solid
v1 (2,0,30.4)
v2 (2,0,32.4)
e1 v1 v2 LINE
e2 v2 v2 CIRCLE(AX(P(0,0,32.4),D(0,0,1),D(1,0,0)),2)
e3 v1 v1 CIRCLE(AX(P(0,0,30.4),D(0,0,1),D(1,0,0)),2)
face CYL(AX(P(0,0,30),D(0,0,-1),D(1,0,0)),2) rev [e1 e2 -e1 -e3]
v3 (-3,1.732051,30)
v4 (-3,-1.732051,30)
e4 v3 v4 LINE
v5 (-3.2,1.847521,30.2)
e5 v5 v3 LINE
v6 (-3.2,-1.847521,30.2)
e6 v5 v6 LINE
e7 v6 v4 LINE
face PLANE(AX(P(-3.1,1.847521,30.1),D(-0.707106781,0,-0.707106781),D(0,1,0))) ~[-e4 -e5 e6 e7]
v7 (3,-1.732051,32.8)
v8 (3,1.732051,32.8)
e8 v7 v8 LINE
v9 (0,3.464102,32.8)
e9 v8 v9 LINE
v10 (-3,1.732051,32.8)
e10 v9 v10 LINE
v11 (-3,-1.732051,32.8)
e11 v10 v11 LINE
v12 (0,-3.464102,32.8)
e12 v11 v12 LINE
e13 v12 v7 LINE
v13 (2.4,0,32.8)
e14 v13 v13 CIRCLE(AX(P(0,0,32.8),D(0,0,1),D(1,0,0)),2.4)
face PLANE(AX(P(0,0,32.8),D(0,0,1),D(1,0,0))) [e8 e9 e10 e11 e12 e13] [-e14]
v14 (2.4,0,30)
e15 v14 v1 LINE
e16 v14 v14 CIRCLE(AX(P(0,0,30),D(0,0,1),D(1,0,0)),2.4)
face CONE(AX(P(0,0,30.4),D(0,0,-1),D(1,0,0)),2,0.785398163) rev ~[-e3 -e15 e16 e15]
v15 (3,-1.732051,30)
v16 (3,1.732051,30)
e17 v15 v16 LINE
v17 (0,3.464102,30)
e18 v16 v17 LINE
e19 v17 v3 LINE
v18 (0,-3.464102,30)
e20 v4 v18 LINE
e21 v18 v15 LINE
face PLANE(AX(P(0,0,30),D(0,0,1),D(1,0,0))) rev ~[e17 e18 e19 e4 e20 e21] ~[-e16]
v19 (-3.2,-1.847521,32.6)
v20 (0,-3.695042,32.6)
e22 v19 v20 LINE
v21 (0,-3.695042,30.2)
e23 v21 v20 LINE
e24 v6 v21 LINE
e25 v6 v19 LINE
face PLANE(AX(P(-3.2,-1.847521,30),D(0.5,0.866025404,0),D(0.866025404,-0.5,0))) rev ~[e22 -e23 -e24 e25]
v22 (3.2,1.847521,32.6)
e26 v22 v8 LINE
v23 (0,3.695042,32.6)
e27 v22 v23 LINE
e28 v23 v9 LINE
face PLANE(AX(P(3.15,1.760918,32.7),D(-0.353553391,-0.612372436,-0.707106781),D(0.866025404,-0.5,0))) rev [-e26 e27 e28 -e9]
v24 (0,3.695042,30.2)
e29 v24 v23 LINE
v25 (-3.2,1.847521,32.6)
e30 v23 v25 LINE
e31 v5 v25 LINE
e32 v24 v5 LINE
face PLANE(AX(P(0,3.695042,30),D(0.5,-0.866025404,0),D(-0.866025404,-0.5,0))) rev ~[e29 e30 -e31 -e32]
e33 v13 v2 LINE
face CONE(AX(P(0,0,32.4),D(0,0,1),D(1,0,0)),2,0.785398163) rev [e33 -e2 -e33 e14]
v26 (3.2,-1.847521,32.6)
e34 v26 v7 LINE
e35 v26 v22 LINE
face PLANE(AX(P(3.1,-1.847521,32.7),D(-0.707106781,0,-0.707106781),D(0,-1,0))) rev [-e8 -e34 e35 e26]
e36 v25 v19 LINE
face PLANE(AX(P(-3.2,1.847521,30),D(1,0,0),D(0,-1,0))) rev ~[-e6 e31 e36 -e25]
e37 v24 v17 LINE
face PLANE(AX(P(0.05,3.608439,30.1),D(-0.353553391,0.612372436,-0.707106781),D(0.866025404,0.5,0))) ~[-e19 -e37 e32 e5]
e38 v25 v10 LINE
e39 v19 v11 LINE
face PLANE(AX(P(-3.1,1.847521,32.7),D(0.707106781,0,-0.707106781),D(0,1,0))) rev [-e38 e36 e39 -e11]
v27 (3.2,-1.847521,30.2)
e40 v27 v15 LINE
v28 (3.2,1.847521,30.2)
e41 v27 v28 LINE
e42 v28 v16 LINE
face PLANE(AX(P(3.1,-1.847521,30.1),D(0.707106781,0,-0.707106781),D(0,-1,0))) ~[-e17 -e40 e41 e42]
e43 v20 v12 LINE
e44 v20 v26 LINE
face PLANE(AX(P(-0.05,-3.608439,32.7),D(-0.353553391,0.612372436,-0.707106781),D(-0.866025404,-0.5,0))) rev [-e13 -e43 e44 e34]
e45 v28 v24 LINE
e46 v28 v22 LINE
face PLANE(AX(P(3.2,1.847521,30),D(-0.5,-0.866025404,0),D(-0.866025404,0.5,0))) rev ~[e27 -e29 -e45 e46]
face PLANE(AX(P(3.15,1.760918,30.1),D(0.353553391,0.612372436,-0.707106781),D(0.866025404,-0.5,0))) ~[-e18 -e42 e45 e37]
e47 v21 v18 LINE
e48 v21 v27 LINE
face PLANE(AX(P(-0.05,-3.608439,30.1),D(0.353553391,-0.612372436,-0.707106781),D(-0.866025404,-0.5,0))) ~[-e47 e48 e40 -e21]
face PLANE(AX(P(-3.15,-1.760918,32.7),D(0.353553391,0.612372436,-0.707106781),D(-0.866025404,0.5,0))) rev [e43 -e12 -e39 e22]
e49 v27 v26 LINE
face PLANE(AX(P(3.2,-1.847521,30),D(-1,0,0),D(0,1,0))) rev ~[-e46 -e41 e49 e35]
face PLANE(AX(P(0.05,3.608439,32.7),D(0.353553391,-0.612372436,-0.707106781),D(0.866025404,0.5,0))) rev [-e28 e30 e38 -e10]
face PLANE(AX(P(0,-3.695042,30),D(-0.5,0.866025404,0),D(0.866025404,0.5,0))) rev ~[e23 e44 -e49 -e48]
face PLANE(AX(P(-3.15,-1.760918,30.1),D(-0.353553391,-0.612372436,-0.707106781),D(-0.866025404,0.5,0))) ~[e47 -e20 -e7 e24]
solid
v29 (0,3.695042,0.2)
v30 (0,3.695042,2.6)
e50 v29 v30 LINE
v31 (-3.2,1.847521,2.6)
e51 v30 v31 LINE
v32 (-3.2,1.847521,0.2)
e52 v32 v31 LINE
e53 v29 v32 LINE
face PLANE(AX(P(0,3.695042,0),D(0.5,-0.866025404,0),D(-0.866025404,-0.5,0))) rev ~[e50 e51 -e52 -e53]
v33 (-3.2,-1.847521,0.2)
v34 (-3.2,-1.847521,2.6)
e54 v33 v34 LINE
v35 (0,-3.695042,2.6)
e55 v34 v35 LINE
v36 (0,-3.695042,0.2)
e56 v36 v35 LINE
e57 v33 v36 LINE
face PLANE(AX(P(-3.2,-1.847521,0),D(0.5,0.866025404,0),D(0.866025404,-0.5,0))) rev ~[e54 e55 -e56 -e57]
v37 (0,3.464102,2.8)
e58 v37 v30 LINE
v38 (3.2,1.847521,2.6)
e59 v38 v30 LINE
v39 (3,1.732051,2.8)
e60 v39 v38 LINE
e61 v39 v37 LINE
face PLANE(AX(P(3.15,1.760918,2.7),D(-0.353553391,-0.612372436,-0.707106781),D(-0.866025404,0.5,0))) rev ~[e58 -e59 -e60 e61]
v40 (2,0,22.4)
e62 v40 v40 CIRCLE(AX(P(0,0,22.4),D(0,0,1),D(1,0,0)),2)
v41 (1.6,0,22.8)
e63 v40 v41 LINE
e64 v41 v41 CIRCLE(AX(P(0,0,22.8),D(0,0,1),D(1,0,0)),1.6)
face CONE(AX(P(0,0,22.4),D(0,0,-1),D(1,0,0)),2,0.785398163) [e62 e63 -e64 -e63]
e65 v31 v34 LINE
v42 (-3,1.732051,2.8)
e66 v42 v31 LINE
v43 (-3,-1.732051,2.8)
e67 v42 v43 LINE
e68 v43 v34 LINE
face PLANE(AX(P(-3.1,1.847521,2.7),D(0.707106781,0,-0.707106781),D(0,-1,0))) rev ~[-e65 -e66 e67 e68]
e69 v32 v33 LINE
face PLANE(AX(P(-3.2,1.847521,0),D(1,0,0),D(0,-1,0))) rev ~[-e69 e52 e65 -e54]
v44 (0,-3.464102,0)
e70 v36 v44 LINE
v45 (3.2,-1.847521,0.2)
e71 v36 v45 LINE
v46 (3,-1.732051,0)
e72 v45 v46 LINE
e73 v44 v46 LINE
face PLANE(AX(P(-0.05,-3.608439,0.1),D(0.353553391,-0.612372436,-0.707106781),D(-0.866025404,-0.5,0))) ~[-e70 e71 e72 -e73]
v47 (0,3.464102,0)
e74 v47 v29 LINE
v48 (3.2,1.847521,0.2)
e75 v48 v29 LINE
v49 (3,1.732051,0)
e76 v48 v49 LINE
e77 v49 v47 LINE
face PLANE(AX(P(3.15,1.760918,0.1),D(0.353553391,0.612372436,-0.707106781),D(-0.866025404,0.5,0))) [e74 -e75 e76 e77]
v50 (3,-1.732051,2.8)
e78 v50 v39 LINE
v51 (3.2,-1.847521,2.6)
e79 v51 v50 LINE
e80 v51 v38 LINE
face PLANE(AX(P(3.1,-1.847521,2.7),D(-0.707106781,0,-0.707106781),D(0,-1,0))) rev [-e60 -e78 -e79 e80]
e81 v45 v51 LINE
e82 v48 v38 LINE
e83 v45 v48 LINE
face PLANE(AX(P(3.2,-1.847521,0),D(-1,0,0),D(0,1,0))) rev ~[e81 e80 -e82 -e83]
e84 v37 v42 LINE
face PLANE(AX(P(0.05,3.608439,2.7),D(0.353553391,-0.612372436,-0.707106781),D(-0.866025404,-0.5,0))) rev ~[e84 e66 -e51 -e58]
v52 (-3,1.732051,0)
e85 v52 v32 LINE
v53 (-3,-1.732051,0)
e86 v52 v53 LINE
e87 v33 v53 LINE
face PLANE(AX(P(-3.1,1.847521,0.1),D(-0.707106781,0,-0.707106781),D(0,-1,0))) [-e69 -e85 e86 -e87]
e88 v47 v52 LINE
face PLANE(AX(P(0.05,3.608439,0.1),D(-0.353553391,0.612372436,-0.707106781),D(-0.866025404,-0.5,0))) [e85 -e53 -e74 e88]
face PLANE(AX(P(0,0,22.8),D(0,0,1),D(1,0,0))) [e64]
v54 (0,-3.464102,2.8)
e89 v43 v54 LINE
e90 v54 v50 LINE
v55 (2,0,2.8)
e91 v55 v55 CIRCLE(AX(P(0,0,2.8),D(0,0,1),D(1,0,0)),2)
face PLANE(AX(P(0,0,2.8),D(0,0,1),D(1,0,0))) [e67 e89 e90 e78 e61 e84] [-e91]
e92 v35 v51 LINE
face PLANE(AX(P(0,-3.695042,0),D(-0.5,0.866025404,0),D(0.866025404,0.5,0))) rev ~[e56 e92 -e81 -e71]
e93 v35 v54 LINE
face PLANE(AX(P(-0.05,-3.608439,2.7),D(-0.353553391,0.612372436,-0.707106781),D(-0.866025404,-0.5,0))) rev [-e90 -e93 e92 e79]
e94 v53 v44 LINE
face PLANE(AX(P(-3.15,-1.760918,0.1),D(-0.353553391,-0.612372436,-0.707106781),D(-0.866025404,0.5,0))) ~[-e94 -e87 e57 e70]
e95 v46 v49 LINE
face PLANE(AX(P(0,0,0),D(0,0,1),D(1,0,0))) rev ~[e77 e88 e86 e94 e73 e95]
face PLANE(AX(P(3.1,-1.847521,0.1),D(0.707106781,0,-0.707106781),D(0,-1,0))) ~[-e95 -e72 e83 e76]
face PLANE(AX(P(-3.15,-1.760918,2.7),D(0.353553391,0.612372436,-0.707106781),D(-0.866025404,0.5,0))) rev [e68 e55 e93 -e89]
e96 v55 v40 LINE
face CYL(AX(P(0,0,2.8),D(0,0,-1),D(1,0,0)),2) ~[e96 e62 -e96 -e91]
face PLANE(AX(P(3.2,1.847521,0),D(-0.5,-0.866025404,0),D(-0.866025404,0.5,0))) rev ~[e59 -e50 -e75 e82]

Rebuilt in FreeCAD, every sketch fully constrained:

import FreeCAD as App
import Part
import Sketcher
from FreeCAD import Vector
Q = App.Units.Quantity


def edges_at(feature, points):
    """Names of the edges that pass closest to the given points."""
    edges = feature.Shape.Edges
    near = lambda p: min(range(len(edges)), key=lambda i: edges[i].distToShape(Part.Vertex(*p))[0])
    return sorted({f"Edge{near(p) + 1}" for p in points})


def add_polygon(sketch, points):
    """Adds a closed chain of lines whose ends are joined by coincident constraints."""
    first, n = sketch.GeometryCount, len(points)
    for a, b in zip(points, points[1:] + points[:1]):
        sketch.addGeometry(Part.LineSegment(App.Vector(*a, 0), App.Vector(*b, 0)), False)
    for i in range(n):
        sketch.addConstraint(Sketcher.Constraint("Coincident", first + i, 2, first + (i + 1) % n, 1))

doc = App.newDocument("Part")
body = doc.addObject("PartDesign::Body", "Body")

sketch1 = body.newObject("Sketcher::SketchObject", "Sketch")
sketch1.AttachmentSupport = (doc.getObject("XY_Plane"), [""])
sketch1.MapMode = "FlatFace"
add_polygon(sketch1, [(0, -3.7), (3.2, -1.8), (3.2, 1.8), (0, 3.7), (-3.2, 1.8), (-3.2, -1.8)])
sketch1.addConstraint(Sketcher.Constraint("Vertical", 1))
sketch1.addConstraint(Sketcher.Constraint("Vertical", 4))
sketch1.addConstraint(Sketcher.Constraint("Symmetric", 0, 2, 3, 2, -1, 1))
sketch1.addConstraint(Sketcher.Constraint("Symmetric", 2, 2, 5, 2, -1, 1))
sketch1.addConstraint(Sketcher.Constraint("PointOnObject", 2, 2, -2))
sketch1.addConstraint(Sketcher.Constraint("Parallel", 2, 5))
sketch1.addConstraint(Sketcher.Constraint("Horizontal", 1, 2, 3, 2))
sketch1.addConstraint(Sketcher.Constraint("Angle", 0, Q("30 deg")))
sketch1.addConstraint(Sketcher.Constraint("DistanceX", -1, 1, 0, 2, Q("3.2 mm")))
sketch1.addConstraint(Sketcher.Constraint("DistanceY", 1, 1, 1, 2, Q("3.695042 mm")))
pad1 = body.newObject("PartDesign::Pad", "Pad")
pad1.Profile = sketch1
pad1.Length = 2.8

sketch2 = body.newObject("Sketcher::SketchObject", "Sketch001")
sketch2.AttachmentSupport = (doc.getObject("XY_Plane"), [""])
sketch2.MapMode = "FlatFace"
sketch2.AttachmentOffset = App.Placement(Vector(0, 0, 2.8), App.Rotation())
sketch2.addGeometry(Part.Circle(Vector(0, 0, 0), Vector(0, 0, 1), 2), False)
sketch2.addConstraint(Sketcher.Constraint("Coincident", 0, 3, -1, 1))
sketch2.addConstraint(Sketcher.Constraint("Diameter", 0, Q("4 mm")))
pad2 = body.newObject("PartDesign::Pad", "Pad001")
pad2.Profile = sketch2
pad2.Length = 20
doc.recompute()

chamfer = body.newObject("PartDesign::Chamfer", "Chamfer")
chamfer.Base = (pad2, edges_at(pad2, [
    (-1.6, -2.771, 0),
    (1.6, -2.771, 0),
    (3.2, 0, 0),
    (1.6, 2.771, 0),
    (-1.6, 2.771, 0),
    (-3.2, 0, 0),
    (-3.2, 0, 2.8),
    (-1.6, -2.771, 2.8),
    (1.6, -2.771, 2.8),
    (-1.6, 2.771, 2.8),
    (1.6, 2.771, 2.8),
    (3.2, 0, 2.8),
]))
chamfer.ChamferType = "Two distances"
chamfer.Size = 0.2
chamfer.Size2 = 0.2
doc.recompute()

chamfer2 = body.newObject("PartDesign::Chamfer", "Chamfer001")
chamfer2.Base = (chamfer, edges_at(chamfer, [(-2, 0, 22.8)]))
chamfer2.Size = 0.4
body2 = doc.addObject("PartDesign::Body", "Body001")

sketch3 = body2.newObject("Sketcher::SketchObject", "Sketch002")
sketch3.AttachmentSupport = (doc.getObject("XY_Plane001"), [""])
sketch3.MapMode = "FlatFace"
sketch3.AttachmentOffset = App.Placement(Vector(0, 0, 30), App.Rotation())
add_polygon(sketch3, [(0, -3.7), (3.2, -1.8), (3.2, 1.8), (0, 3.7), (-3.2, 1.8), (-3.2, -1.8)])
sketch3.addGeometry(Part.Circle(Vector(0, 0, 0), Vector(0, 0, 1), 2), False)
sketch3.addConstraint(Sketcher.Constraint("Vertical", 1))
sketch3.addConstraint(Sketcher.Constraint("Vertical", 4))
sketch3.addConstraint(Sketcher.Constraint("Coincident", 6, 3, -1, 1))
sketch3.addConstraint(Sketcher.Constraint("Symmetric", 0, 2, 3, 2, -1, 1))
sketch3.addConstraint(Sketcher.Constraint("Symmetric", 2, 2, 5, 2, -1, 1))
sketch3.addConstraint(Sketcher.Constraint("PointOnObject", 2, 2, -2))
sketch3.addConstraint(Sketcher.Constraint("Parallel", 2, 5))
sketch3.addConstraint(Sketcher.Constraint("Horizontal", 1, 2, 3, 2))
sketch3.addConstraint(Sketcher.Constraint("Diameter", 6, Q("4 mm")))
sketch3.addConstraint(Sketcher.Constraint("Angle", 0, Q("30 deg")))
sketch3.addConstraint(Sketcher.Constraint("DistanceX", -1, 1, 0, 2, Q("3.2 mm")))
sketch3.addConstraint(Sketcher.Constraint("DistanceY", 1, 1, 1, 2, Q("3.695042 mm")))
pad3 = body2.newObject("PartDesign::Pad", "Pad002")
pad3.Profile = sketch3
pad3.Length = 2.8
doc.recompute()

chamfer3 = body2.newObject("PartDesign::Chamfer", "Chamfer002")
chamfer3.Base = (pad3, edges_at(pad3, [
    (1.6, 2.771, 32.8),
    (-1.6, 2.771, 32.8),
    (-3.2, 0, 32.8),
    (-1.6, -2.771, 32.8),
    (1.6, -2.771, 32.8),
    (3.2, 0, 32.8),
    (1.6, -2.771, 30),
    (-1.6, -2.771, 30),
    (-3.2, 0, 30),
    (-1.6, 2.771, 30),
    (1.6, 2.771, 30),
    (3.2, 0, 30),
]))
chamfer3.ChamferType = "Two distances"
chamfer3.Size = 0.2
chamfer3.Size2 = 0.2
doc.recompute()

chamfer4 = body2.newObject("PartDesign::Chamfer", "Chamfer003")
chamfer4.Base = (chamfer3, edges_at(chamfer3, [(2, 0, 31.4), (-2, 0, 30), (-2, 0, 32.8)]))
chamfer4.Size = 0.4

doc.recompute()
